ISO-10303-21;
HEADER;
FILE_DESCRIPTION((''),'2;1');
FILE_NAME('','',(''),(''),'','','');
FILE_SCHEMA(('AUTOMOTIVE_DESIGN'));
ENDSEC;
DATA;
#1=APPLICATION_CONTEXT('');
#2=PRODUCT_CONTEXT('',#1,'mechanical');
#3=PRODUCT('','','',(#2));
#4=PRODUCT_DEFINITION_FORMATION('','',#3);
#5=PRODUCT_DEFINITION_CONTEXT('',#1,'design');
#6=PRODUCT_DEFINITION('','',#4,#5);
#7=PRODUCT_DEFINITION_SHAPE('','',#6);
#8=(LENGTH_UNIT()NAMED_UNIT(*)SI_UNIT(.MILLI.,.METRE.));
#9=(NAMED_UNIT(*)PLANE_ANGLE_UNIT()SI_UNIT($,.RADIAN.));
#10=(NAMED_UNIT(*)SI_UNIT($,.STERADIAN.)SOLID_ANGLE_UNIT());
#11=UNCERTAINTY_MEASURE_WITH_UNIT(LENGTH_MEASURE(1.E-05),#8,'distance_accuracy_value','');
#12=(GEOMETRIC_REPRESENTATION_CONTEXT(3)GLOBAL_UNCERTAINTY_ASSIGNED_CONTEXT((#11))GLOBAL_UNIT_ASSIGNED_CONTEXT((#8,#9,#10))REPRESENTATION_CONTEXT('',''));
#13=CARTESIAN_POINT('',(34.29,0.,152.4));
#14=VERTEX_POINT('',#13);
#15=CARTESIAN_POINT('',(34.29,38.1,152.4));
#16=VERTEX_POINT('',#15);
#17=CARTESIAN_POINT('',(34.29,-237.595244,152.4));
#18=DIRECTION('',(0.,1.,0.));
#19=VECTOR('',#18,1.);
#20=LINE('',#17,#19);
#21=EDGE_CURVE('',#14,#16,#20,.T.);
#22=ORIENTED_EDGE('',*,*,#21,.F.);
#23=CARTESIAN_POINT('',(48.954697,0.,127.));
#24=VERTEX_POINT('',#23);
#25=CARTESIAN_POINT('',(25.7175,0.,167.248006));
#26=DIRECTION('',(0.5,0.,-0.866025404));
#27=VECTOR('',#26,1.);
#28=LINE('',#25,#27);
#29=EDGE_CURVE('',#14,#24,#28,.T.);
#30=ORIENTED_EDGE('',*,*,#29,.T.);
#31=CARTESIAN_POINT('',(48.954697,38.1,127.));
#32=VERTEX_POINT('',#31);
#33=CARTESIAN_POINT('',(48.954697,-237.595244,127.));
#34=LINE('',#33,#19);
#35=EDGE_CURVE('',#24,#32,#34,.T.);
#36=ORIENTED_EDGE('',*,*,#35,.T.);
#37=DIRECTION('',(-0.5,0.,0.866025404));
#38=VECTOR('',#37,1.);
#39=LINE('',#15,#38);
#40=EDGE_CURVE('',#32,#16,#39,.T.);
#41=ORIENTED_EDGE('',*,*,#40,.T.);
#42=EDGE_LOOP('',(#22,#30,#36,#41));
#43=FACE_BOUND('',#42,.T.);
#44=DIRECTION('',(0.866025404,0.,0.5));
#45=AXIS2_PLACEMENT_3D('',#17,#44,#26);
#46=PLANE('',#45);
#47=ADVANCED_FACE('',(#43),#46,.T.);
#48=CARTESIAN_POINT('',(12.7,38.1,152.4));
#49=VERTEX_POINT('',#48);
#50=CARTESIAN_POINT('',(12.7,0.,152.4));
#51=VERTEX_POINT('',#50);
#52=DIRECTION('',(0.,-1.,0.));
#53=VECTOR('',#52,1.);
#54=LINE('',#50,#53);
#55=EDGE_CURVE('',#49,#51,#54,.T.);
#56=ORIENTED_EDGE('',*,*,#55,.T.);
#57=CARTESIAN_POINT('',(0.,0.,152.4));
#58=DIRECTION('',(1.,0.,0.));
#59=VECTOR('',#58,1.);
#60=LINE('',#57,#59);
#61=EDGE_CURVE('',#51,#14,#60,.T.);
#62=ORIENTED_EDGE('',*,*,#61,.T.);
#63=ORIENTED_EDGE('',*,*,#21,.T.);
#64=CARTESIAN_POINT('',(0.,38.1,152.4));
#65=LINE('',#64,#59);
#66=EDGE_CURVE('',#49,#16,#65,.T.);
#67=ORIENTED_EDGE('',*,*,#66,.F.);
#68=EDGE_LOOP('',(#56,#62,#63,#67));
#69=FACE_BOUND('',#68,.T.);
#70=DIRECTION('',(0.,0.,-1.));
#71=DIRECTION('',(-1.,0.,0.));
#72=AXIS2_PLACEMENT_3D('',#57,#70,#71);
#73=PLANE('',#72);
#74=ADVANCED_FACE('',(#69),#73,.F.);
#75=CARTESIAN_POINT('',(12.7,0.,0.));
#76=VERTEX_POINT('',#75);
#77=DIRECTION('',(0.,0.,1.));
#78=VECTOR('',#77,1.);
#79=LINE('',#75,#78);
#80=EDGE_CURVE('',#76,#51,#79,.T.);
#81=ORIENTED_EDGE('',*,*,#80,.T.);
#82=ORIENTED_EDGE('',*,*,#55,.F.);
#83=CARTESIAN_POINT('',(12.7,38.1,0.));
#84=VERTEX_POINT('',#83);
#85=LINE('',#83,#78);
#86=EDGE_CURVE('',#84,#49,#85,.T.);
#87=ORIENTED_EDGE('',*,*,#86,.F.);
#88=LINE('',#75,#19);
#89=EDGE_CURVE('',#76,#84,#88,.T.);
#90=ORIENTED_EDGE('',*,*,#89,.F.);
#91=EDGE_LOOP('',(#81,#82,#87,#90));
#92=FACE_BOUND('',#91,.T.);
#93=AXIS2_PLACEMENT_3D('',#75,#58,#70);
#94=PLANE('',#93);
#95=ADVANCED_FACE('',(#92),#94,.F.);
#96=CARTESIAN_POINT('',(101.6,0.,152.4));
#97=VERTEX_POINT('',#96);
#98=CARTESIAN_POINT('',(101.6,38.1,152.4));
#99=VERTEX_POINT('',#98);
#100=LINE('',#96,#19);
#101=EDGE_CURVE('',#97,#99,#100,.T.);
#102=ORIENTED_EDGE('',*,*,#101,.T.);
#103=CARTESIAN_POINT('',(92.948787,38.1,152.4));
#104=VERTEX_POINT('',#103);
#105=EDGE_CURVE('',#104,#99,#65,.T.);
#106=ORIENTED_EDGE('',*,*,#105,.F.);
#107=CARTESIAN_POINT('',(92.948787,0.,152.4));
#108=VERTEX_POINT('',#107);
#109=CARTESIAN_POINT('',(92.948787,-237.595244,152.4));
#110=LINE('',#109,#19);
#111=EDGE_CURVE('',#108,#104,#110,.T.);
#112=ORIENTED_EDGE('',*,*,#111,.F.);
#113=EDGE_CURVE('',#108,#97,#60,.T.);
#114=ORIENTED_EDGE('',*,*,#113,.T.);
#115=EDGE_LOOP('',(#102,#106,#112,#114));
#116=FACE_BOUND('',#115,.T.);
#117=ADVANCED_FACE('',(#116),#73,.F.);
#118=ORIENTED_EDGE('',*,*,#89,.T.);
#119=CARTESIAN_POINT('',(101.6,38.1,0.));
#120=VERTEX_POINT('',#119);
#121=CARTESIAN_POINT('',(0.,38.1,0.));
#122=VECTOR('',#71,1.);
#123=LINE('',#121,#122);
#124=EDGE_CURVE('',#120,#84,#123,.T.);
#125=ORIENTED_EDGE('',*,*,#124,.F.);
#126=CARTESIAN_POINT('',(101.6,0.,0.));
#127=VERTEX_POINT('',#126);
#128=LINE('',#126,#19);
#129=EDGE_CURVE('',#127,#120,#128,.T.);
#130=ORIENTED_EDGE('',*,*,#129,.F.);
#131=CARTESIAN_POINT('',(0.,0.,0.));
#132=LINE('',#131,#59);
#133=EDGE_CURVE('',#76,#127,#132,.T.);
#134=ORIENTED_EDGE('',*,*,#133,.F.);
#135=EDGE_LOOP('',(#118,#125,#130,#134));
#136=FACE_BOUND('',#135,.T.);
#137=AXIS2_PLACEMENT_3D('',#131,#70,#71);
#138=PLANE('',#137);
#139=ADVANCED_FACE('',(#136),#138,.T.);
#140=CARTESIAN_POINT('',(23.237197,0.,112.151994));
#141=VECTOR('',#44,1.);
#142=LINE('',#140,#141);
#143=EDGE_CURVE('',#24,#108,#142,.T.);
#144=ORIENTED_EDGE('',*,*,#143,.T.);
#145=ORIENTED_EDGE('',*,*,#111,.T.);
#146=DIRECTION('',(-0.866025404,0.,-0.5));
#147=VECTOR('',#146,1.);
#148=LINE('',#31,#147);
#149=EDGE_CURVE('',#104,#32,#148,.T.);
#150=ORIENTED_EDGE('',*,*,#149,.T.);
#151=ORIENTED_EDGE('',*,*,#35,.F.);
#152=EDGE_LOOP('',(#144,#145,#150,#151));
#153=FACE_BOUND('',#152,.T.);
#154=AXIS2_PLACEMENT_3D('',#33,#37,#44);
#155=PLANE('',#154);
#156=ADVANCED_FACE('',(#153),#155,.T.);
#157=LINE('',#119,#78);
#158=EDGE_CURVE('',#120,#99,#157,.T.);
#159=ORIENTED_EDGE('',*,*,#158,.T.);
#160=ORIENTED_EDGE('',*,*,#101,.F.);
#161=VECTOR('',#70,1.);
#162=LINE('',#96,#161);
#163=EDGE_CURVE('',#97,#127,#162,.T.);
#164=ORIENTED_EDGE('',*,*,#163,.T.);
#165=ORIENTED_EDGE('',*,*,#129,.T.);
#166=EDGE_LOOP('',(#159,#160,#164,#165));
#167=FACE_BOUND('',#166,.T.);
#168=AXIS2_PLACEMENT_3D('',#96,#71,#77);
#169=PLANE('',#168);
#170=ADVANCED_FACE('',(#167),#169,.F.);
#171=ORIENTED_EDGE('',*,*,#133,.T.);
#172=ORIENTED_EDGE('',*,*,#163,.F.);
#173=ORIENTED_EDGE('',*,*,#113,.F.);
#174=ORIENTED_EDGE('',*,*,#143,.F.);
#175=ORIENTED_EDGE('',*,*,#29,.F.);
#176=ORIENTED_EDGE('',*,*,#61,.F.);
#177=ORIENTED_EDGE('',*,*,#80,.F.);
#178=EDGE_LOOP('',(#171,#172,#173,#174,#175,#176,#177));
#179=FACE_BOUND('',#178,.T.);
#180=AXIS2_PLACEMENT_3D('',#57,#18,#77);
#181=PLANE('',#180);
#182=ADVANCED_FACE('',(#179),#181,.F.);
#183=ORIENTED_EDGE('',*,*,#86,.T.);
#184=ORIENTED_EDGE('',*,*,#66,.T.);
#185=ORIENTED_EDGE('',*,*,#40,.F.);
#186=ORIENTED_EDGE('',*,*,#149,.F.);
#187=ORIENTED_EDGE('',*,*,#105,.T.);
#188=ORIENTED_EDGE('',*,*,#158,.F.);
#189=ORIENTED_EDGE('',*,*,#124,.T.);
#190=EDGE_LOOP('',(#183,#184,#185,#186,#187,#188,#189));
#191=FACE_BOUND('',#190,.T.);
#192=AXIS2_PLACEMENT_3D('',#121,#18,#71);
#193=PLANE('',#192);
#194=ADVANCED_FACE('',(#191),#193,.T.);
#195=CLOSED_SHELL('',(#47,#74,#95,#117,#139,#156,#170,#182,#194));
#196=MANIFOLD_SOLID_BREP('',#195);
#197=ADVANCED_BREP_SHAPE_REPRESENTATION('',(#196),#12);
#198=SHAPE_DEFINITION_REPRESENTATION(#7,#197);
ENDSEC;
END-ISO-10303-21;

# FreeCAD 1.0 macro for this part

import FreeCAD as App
import Part
import Sketcher
from FreeCAD import Vector
Q = App.Units.Quantity

doc = App.newDocument("Part")
body = doc.addObject("PartDesign::Body", "Body")

# Sketch on XY plane
sketch1 = body.newObject("Sketcher::SketchObject", "Sketch")
sketch1.AttachmentSupport = (doc.getObject("XY_Plane"), [""])
sketch1.MapMode = "FlatFace"
sketch1.addGeometry(Part.LineSegment(Vector(0, 50.8, 0), Vector(0, 0, 0)), False)
sketch1.addGeometry(Part.LineSegment(Vector(0, 0, 0), Vector(101.6, 0, 0)), False)
sketch1.addGeometry(Part.LineSegment(Vector(101.6, 0, 0), Vector(101.6, 50.8, 0)), False)
sketch1.addGeometry(Part.LineSegment(Vector(101.6, 50.8, 0), Vector(0, 50.8, 0)), False)
sketch1.addConstraint(Sketcher.Constraint("Coincident", 0, 2, 1, 1))
sketch1.addConstraint(Sketcher.Constraint("Coincident", 1, 2, 2, 1))
sketch1.addConstraint(Sketcher.Constraint("Coincident", 2, 2, 3, 1))
sketch1.addConstraint(Sketcher.Constraint("Coincident", 3, 2, 0, 1))
sketch1.addConstraint(Sketcher.Constraint("Vertical", 0))
sketch1.addConstraint(Sketcher.Constraint("Horizontal", 1))
sketch1.addConstraint(Sketcher.Constraint("Vertical", 2))
sketch1.addConstraint(Sketcher.Constraint("Horizontal", 3))
sketch1.addConstraint(Sketcher.Constraint("Coincident", 0, 2, -1, 1))
sketch1.addConstraint(Sketcher.Constraint("DistanceX", 1, 1, 1, 2, Q("4 in")))
sketch1.addConstraint(Sketcher.Constraint("DistanceY", 0, 2, 0, 1, Q("2 in")))
pad1 = body.newObject("PartDesign::Pad", "Pad")
pad1.Profile = sketch1
pad1.Length = Q("6 in")

# Sketch on XZ plane
sketch2 = body.newObject("Sketcher::SketchObject", "Sketch001")
sketch2.AttachmentSupport = (doc.getObject("XZ_Plane"), [""])
sketch2.MapMode = "FlatFace"
sketch2.addGeometry(Part.LineSegment(Vector(-149.218367, 470.245815, 0), Vector(34.29, 152.4, 0)), False)
sketch2.addGeometry(Part.LineSegment(Vector(34.29, 152.4, 0), Vector(48.954697, 127, 0)), False)
sketch2.addGeometry(Part.LineSegment(Vector(48.954697, 127, 0), Vector(92.948787, 152.4, 0)), False)
sketch2.addGeometry(Part.LineSegment(Vector(92.948787, 152.4, 0), Vector(410.794603, 335.908367, 0)), False)
sketch2.addGeometry(Part.LineSegment(Vector(410.794603, 335.908367, 0), Vector(582.019022, 1049.692179, 0)), False)
sketch2.addGeometry(Part.LineSegment(Vector(582.019022, 1049.692179, 0), Vector(22.006053, 1184.029627, 0)), False)
sketch2.addGeometry(Part.LineSegment(Vector(22.006053, 1184.029627, 0), Vector(-149.218367, 470.245815, 0)), False)
sketch2.addConstraint(Sketcher.Constraint("Coincident", 0, 2, 1, 1))
sketch2.addConstraint(Sketcher.Constraint("Coincident", 1, 2, 2, 1))
sketch2.addConstraint(Sketcher.Constraint("Coincident", 2, 2, 3, 1))
sketch2.addConstraint(Sketcher.Constraint("Coincident", 3, 2, 4, 1))
sketch2.addConstraint(Sketcher.Constraint("Coincident", 4, 2, 5, 1))
sketch2.addConstraint(Sketcher.Constraint("Coincident", 5, 2, 6, 1))
sketch2.addConstraint(Sketcher.Constraint("Coincident", 6, 2, 0, 1))
sketch2.addConstraint(Sketcher.Constraint("Parallel", 0, 1))
sketch2.addConstraint(Sketcher.Constraint("Perpendicular", 1, 2))
sketch2.addConstraint(Sketcher.Constraint("Parallel", 2, 3))
sketch2.addConstraint(Sketcher.Constraint("Perpendicular", 4, 5))
sketch2.addConstraint(Sketcher.Constraint("Perpendicular", 5, 6))
sketch2.addConstraint(Sketcher.Constraint("Horizontal", 0, 2, 2, 2))
sketch2.addConstraint(Sketcher.Constraint("Equal", 0, 3))
sketch2.addConstraint(Sketcher.Constraint("Equal", 4, 6))
sketch2.addConstraint(Sketcher.Constraint("Distance", 2, Q("2 in")))
sketch2.addConstraint(Sketcher.Constraint("DistanceY", -1, 1, 0, 2, Q("6 in")))
sketch2.addConstraint(Sketcher.Constraint("DistanceY", -1, 1, 1, 2, Q("5 in")))
sketch2.addConstraint(Sketcher.Constraint("DistanceX", -1, 1, 0, 2, Q("1.35 in")))
sketch2.addConstraint(Sketcher.Constraint("Distance", 5, 575.900231))
sketch2.addConstraint(Sketcher.Constraint("DistanceY", -1, 1, 4, 2, 1049.692179))
pocket1 = body.newObject("PartDesign::Pocket", "Pocket")
pocket1.Profile = sketch2
pocket1.Type = "ThroughAll"
pocket1.Midplane = True

# Sketch on XY plane
sketch3 = body.newObject("Sketcher::SketchObject", "Sketch002")
sketch3.AttachmentSupport = (doc.getObject("XY_Plane"), [""])
sketch3.MapMode = "FlatFace"
sketch3.AttachmentOffset = App.Placement(Vector(0, 0, 6 * 25.4), App.Rotation())
sketch3.addGeometry(Part.LineSegment(Vector(0, 0, 0), Vector(12.7, 0, 0)), False)
sketch3.addGeometry(Part.LineSegment(Vector(12.7, 0, 0), Vector(12.7, 38.1, 0)), False)
sketch3.addGeometry(Part.LineSegment(Vector(12.7, 38.1, 0), Vector(101.6, 38.1, 0)), False)
sketch3.addGeometry(Part.LineSegment(Vector(101.6, 38.1, 0), Vector(101.6, 50.8, 0)), False)
sketch3.addGeometry(Part.LineSegment(Vector(101.6, 50.8, 0), Vector(0, 50.8, 0)), False)
sketch3.addGeometry(Part.LineSegment(Vector(0, 50.8, 0), Vector(0, 0, 0)), False)
sketch3.addConstraint(Sketcher.Constraint("Coincident", 0, 2, 1, 1))
sketch3.addConstraint(Sketcher.Constraint("Coincident", 1, 2, 2, 1))
sketch3.addConstraint(Sketcher.Constraint("Coincident", 2, 2, 3, 1))
sketch3.addConstraint(Sketcher.Constraint("Coincident", 3, 2, 4, 1))
sketch3.addConstraint(Sketcher.Constraint("Coincident", 4, 2, 5, 1))
sketch3.addConstraint(Sketcher.Constraint("Coincident", 5, 2, 0, 1))
sketch3.addConstraint(Sketcher.Constraint("Horizontal", 0))
sketch3.addConstraint(Sketcher.Constraint("Vertical", 1))
sketch3.addConstraint(Sketcher.Constraint("Horizontal", 2))
sketch3.addConstraint(Sketcher.Constraint("Vertical", 3))
sketch3.addConstraint(Sketcher.Constraint("Horizontal", 4))
sketch3.addConstraint(Sketcher.Constraint("Vertical", 5))
sketch3.addConstraint(Sketcher.Constraint("Coincident", 5, 2, -1, 1))
sketch3.addConstraint(Sketcher.Constraint("Equal", 0, 3))
sketch3.addConstraint(Sketcher.Constraint("DistanceX", 4, 2, 4, 1, Q("4 in")))
sketch3.addConstraint(Sketcher.Constraint("DistanceY", 5, 2, 5, 1, Q("2 in")))
sketch3.addConstraint(Sketcher.Constraint("DistanceX", 0, 1, 0, 2, Q("0.5 in")))
pocket2 = body.newObject("PartDesign::Pocket", "Pocket001")
pocket2.Profile = sketch3
pocket2.Type = "ThroughAll"
pocket2.Midplane = True

doc.recompute()
